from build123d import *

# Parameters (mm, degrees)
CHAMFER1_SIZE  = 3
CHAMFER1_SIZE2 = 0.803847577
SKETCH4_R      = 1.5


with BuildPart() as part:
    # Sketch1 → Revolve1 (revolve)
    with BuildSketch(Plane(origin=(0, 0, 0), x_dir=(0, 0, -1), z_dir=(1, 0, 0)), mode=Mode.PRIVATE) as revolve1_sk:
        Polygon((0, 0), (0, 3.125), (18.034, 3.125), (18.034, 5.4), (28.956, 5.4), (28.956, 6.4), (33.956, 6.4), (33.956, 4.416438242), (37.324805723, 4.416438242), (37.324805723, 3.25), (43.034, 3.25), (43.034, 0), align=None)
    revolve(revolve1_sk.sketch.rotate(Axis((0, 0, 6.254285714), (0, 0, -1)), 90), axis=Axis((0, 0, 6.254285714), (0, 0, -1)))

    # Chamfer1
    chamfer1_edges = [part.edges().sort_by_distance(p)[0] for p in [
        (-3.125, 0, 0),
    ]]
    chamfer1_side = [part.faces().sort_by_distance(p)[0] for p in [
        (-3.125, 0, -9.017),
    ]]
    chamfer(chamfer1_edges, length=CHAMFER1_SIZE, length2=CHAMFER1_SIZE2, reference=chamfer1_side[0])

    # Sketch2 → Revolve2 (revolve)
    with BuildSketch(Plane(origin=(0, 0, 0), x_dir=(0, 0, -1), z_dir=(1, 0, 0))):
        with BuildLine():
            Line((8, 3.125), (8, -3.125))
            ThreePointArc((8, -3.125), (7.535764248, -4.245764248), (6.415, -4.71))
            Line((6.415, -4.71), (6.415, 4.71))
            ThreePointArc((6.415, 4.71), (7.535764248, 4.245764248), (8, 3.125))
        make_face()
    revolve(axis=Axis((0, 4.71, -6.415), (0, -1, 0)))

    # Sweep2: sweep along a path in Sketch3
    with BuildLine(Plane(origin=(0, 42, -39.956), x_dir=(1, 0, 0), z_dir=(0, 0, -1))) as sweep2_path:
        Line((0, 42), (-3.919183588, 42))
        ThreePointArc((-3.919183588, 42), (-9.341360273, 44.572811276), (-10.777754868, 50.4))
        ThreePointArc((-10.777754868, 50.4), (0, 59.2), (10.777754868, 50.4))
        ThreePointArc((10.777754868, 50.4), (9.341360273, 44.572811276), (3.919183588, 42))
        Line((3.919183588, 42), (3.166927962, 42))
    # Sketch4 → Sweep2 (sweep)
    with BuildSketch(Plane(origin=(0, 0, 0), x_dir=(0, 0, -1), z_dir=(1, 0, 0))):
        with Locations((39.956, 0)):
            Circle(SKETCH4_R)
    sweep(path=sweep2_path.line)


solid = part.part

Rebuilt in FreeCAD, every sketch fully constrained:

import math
import FreeCAD as App
import Part
import Sketcher


def edges_at(feature, points):
    """Names of the edges that pass closest to the given points."""
    edges = feature.Shape.Edges
    near = lambda p: min(range(len(edges)), key=lambda i: edges[i].distToShape(Part.Vertex(*p))[0])
    return sorted({f"Edge{near(p) + 1}" for p in points})


def add_polygon(sketch, points):
    """Adds a closed chain of lines whose ends are joined by coincident constraints."""
    first, n = sketch.GeometryCount, len(points)
    for a, b in zip(points, points[1:] + points[:1]):
        sketch.addGeometry(Part.LineSegment(App.Vector(*a, 0), App.Vector(*b, 0)), False)
    for i in range(n):
        sketch.addConstraint(Sketcher.Constraint("Coincident", first + i, 2, first + (i + 1) % n, 1))

doc = App.newDocument("Part")
body = doc.addObject("PartDesign::Body", "Body")

# Sketch on YZ plane
sketch1 = body.newObject("Sketcher::SketchObject", "Sketch")
sketch1.AttachmentSupport = (doc.getObject("YZ_Plane"), [""])
sketch1.MapMode = "FlatFace"
add_polygon(sketch1, [(3.1, 0), (0, 0), (0, -43), (3.2, -43), (3.2, -37.3), (4.4, -37.3), (4.4, -34), (6.4, -34), (6.4, -29), (5.4, -29), (5.4, -18), (3.1, -18)])  # lines 0-11
sketch1.addConstraint([
    Sketcher.Constraint("Horizontal", 0),
    Sketcher.Constraint("Vertical", 1),
    Sketcher.Constraint("Horizontal", 2),
    Sketcher.Constraint("Vertical", 3),
    Sketcher.Constraint("Horizontal", 4),
    Sketcher.Constraint("Vertical", 5),
    Sketcher.Constraint("Horizontal", 6),
    Sketcher.Constraint("Vertical", 7),
    Sketcher.Constraint("Horizontal", 8),
    Sketcher.Constraint("Vertical", 9),
    Sketcher.Constraint("Horizontal", 10),
    Sketcher.Constraint("Vertical", 11),
    Sketcher.Constraint("Coincident", 0, 2, -1, 1),
    Sketcher.Constraint("DistanceX", 8, 2, 8, 1, 1.0),
    Sketcher.Constraint("DistanceY", 7, 1, 7, 2, 5.0),
    Sketcher.Constraint("DistanceX", 2, 1, 2, 2, 3.25),
    Sketcher.Constraint("DistanceX", -1, 1, 6, 2, 6.4),
    Sketcher.Constraint("DistanceX", 0, 2, 0, 1, 3.125),
    Sketcher.Constraint("DistanceY", 1, 2, 1, 1, 43.034),
    Sketcher.Constraint("DistanceY", 9, 1, 9, 2, 10.922),
    Sketcher.Constraint("DistanceY", 11, 1, 11, 2, 18.034),
    Sketcher.Constraint("DistanceX", 4, 1, 4, 2, 1.166438),
    Sketcher.Constraint("DistanceY", 3, 1, 3, 2, 5.709194),
])
revolution = body.newObject("PartDesign::Revolution", "Revolution")
revolution.Profile = sketch1
revolution.ReferenceAxis = (sketch1, ["V_Axis"])
revolution.Angle = 360
doc.recompute()

chamfer = body.newObject("PartDesign::Chamfer", "Chamfer")
chamfer.Base = (revolution, edges_at(revolution, [(-3.125, 0, 0)]))
chamfer.ChamferType = "Two distances"
chamfer.Size = 3
chamfer.Size2 = 0.803848
chamfer.FlipDirection = True

# Sketch on YZ plane
sketch2 = body.newObject("Sketcher::SketchObject", "Sketch001")
sketch2.AttachmentSupport = (doc.getObject("YZ_Plane"), [""])
sketch2.MapMode = "FlatFace"
sketch2.addGeometry([
    Part.LineSegment(App.Vector(-3.1, -8, 0), App.Vector(3.1, -8, 0)),
    Part.ArcOfCircle(Part.Circle(App.Vector(3.1, -6.4, 0), App.Vector(0, 0, 1), 1.6), math.radians(-90), math.radians(0)),
    Part.LineSegment(App.Vector(4.7, -6.4, 0), App.Vector(-4.7, -6.4, 0)),
    Part.ArcOfCircle(Part.Circle(App.Vector(-3.1, -6.4, 0), App.Vector(0, 0, 1), 1.6), math.radians(-180), math.radians(-90)),
], False)
sketch2.addGeometry(Part.LineSegment(App.Vector(4.7, -6.4, 0), App.Vector(-4.7, -6.4, 0)), True)  # axis
sketch2.addConstraint([
    Sketcher.Constraint("Tangent", 0, 2, 1, 1),
    Sketcher.Constraint("Coincident", 1, 2, 2, 1),
    Sketcher.Constraint("Coincident", 2, 2, 3, 1),
    Sketcher.Constraint("Tangent", 3, 2, 0, 1),
    Sketcher.Constraint("Horizontal", 0),
    Sketcher.Constraint("Horizontal", 2),
    Sketcher.Constraint("Horizontal", 4),
    Sketcher.Constraint("Coincident", 4, 1, 1, 2),
    Sketcher.Constraint("Equal", 1, 3),
    Sketcher.Constraint("Horizontal", 3, 3, 1, 2),
    Sketcher.Constraint("Equal", 2, 4),
    Sketcher.Constraint("DistanceY", 0, 2, -1, 1, 8.0),
    Sketcher.Constraint("Radius", 1, 1.585),
    Sketcher.Constraint("DistanceX", 0, 1, 0, 2, 6.25),
    Sketcher.Constraint("DistanceX", -1, 1, 1, 2, 4.71),
])
revolution2 = body.newObject("PartDesign::Revolution", "Revolution001")
revolution2.Profile = sketch2
revolution2.ReferenceAxis = (sketch2, ["Axis0"])
revolution2.Angle = 360

# Sketch on YZ plane
sketch3 = body.newObject("Sketcher::SketchObject", "Sketch002")
sketch3.AttachmentSupport = (doc.getObject("YZ_Plane"), [""])
sketch3.MapMode = "FlatFace"
sketch3.addGeometry(Part.Circle(App.Vector(0, -40, 0), App.Vector(0, 0, 1), 1.5), False)
sketch3.addConstraint([
    Sketcher.Constraint("PointOnObject", 0, 3, -2),
    Sketcher.Constraint("Diameter", 0, 3.0),
    Sketcher.Constraint("DistanceY", 0, 3, -1, 1, 39.956),
])

# Sketch on XY plane
sketch4 = body.newObject("Sketcher::SketchObject", "Sketch003")
sketch4.AttachmentSupport = (doc.getObject("XY_Plane"), [""])
sketch4.MapMode = "FlatFace"
sketch4.AttachmentOffset = App.Placement(App.Vector(0, 0, -39.956), App.Rotation())
sketch4.addGeometry([
    Part.LineSegment(App.Vector(0, 0, 0), App.Vector(-3.9, 0, 0)),  # 0
    Part.ArcOfCircle(Part.Circle(App.Vector(-3.9, -7, 0), App.Vector(0, 0, 1), 7), math.radians(90), math.radians(192)),  # 1
    Part.ArcOfCircle(Part.Circle(App.Vector(0, -6.2, 0), App.Vector(0, 0, 1), 11), math.radians(-168), math.radians(-12)),  # 2
    Part.ArcOfCircle(Part.Circle(App.Vector(3.9, -7, 0), App.Vector(0, 0, 1), 7), math.radians(-12), math.radians(90)),  # 3
    Part.LineSegment(App.Vector(3.9, 0, 0), App.Vector(3.2, 0, 0)),  # 4
], False)
sketch4.addConstraint([
    Sketcher.Constraint("Tangent", 0, 2, 1, 1),
    Sketcher.Constraint("Tangent", 1, 2, 2, 1),
    Sketcher.Constraint("Tangent", 2, 2, 3, 1),
    Sketcher.Constraint("Tangent", 3, 2, 4, 1),
    Sketcher.Constraint("Horizontal", 0),
    Sketcher.Constraint("Horizontal", 4),
    Sketcher.Constraint("Coincident", 0, 1, -1, 1),
    Sketcher.Constraint("Equal", 1, 3),
    Sketcher.Constraint("Symmetric", 0, 2, 3, 2, -1, 1),
    Sketcher.Constraint("Radius", 1, 7.0),
    Sketcher.Constraint("Radius", 2, 11.0),
    Sketcher.Constraint("DistanceY", 2, 3, -1, 1, 6.2),
    Sketcher.Constraint("DistanceX", 4, 2, 4, 1, 0.752256),
])
doc.recompute()

additivepipe = body.newObject("PartDesign::AdditivePipe", "AdditivePipe")
additivepipe.Profile = sketch3
additivepipe.Spine = (sketch4, ["Edge1", "Edge2", "Edge3", "Edge4", "Edge5"])

doc.recompute()
